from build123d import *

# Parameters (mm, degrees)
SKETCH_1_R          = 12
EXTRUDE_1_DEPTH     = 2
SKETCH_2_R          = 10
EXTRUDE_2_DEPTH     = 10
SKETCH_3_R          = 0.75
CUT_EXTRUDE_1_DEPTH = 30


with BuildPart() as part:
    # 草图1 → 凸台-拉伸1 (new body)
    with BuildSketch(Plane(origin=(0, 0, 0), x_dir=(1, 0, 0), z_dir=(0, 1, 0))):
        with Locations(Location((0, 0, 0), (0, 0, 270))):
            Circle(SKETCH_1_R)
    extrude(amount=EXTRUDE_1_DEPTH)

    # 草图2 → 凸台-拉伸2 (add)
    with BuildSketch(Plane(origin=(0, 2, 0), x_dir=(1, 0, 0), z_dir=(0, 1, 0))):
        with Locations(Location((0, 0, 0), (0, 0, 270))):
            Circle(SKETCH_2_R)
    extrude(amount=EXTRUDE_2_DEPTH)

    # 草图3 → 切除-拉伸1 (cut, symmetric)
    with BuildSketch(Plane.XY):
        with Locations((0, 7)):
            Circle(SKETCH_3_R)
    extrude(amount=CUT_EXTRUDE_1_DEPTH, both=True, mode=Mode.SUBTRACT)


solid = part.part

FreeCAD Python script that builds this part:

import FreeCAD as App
import Part
import Sketcher
Q = App.Units.Quantity

doc = App.newDocument("Part")
params = doc.addObject("Spreadsheet::Sheet", "Params")
for row, (alias, value) in enumerate([
    ("sketch1_diameter", "24 mm"),
    ("pad1_length", "2 mm"),
    ("sketch2_diameter", "20 mm"),
    ("pad2_length", "10 mm"),
    ("sketch3_diameter", "1.5 mm"),
    ("pocket1_length", "60 mm"),
], start=1):
    params.set(f"A{row}", alias)
    params.set(f"B{row}", "=" + value)
    params.setAlias(f"B{row}", alias)

body = doc.addObject("PartDesign::Body", "Body")

# Sketch on XZ plane
sketch1 = doc.addObject("Sketcher::SketchObject", "Sketch")
body.addObject(sketch1)
sketch1.AttachmentSupport = (doc.XZ_Plane, [""])
sketch1.MapMode = "FlatFace"
sketch1.addGeometry(Part.Circle(App.Vector(0, 0, 0), App.Vector(0, 0, 1), 12), False)
sketch1.addConstraint([
    Sketcher.Constraint("Coincident", 0, 3, -1, 1),
    Sketcher.Constraint("Diameter", 0, Q("24 mm")),
])
sketch1.setExpression("Constraints[1]", "Params.sketch1_diameter")
pad1 = doc.addObject("PartDesign::Pad", "Pad")
body.addObject(pad1)
pad1.Profile = sketch1
pad1.setExpression("Length", "Params.pad1_length")
pad1.Reversed = True

# Sketch on XZ plane
sketch2 = doc.addObject("Sketcher::SketchObject", "Sketch001")
body.addObject(sketch2)
sketch2.AttachmentSupport = (doc.XZ_Plane, [""])
sketch2.MapMode = "FlatFace"
sketch2.AttachmentOffset = App.Placement(App.Vector(0, 0, -2), App.Rotation())
sketch2.addGeometry(Part.Circle(App.Vector(0, 0, 0), App.Vector(0, 0, 1), 10), False)
sketch2.addConstraint([
    Sketcher.Constraint("Coincident", 0, 3, -1, 1),
    Sketcher.Constraint("Diameter", 0, Q("20 mm")),
])
sketch2.setExpression("Constraints[1]", "Params.sketch2_diameter")
pad2 = doc.addObject("PartDesign::Pad", "Pad001")
body.addObject(pad2)
pad2.Profile = sketch2
pad2.setExpression("Length", "Params.pad2_length")
pad2.Reversed = True

# Sketch on XY plane
sketch3 = doc.addObject("Sketcher::SketchObject", "Sketch002")
body.addObject(sketch3)
sketch3.AttachmentSupport = (doc.XY_Plane, [""])
sketch3.MapMode = "FlatFace"
sketch3.addGeometry(Part.Circle(App.Vector(0, 7, 0), App.Vector(0, 0, 1), 0.8), False)
sketch3.addConstraint([
    Sketcher.Constraint("PointOnObject", 0, 3, -2),
    Sketcher.Constraint("Diameter", 0, Q("1.5 mm")),
    Sketcher.Constraint("DistanceY", -1, 1, 0, 3, Q("7 mm")),
])
sketch3.setExpression("Constraints[1]", "Params.sketch3_diameter")
pocket1 = doc.addObject("PartDesign::Pocket", "Pocket")
body.addObject(pocket1)
pocket1.Profile = sketch3
pocket1.setExpression("Length", "Params.pocket1_length")
pocket1.Midplane = True

doc.recompute()
